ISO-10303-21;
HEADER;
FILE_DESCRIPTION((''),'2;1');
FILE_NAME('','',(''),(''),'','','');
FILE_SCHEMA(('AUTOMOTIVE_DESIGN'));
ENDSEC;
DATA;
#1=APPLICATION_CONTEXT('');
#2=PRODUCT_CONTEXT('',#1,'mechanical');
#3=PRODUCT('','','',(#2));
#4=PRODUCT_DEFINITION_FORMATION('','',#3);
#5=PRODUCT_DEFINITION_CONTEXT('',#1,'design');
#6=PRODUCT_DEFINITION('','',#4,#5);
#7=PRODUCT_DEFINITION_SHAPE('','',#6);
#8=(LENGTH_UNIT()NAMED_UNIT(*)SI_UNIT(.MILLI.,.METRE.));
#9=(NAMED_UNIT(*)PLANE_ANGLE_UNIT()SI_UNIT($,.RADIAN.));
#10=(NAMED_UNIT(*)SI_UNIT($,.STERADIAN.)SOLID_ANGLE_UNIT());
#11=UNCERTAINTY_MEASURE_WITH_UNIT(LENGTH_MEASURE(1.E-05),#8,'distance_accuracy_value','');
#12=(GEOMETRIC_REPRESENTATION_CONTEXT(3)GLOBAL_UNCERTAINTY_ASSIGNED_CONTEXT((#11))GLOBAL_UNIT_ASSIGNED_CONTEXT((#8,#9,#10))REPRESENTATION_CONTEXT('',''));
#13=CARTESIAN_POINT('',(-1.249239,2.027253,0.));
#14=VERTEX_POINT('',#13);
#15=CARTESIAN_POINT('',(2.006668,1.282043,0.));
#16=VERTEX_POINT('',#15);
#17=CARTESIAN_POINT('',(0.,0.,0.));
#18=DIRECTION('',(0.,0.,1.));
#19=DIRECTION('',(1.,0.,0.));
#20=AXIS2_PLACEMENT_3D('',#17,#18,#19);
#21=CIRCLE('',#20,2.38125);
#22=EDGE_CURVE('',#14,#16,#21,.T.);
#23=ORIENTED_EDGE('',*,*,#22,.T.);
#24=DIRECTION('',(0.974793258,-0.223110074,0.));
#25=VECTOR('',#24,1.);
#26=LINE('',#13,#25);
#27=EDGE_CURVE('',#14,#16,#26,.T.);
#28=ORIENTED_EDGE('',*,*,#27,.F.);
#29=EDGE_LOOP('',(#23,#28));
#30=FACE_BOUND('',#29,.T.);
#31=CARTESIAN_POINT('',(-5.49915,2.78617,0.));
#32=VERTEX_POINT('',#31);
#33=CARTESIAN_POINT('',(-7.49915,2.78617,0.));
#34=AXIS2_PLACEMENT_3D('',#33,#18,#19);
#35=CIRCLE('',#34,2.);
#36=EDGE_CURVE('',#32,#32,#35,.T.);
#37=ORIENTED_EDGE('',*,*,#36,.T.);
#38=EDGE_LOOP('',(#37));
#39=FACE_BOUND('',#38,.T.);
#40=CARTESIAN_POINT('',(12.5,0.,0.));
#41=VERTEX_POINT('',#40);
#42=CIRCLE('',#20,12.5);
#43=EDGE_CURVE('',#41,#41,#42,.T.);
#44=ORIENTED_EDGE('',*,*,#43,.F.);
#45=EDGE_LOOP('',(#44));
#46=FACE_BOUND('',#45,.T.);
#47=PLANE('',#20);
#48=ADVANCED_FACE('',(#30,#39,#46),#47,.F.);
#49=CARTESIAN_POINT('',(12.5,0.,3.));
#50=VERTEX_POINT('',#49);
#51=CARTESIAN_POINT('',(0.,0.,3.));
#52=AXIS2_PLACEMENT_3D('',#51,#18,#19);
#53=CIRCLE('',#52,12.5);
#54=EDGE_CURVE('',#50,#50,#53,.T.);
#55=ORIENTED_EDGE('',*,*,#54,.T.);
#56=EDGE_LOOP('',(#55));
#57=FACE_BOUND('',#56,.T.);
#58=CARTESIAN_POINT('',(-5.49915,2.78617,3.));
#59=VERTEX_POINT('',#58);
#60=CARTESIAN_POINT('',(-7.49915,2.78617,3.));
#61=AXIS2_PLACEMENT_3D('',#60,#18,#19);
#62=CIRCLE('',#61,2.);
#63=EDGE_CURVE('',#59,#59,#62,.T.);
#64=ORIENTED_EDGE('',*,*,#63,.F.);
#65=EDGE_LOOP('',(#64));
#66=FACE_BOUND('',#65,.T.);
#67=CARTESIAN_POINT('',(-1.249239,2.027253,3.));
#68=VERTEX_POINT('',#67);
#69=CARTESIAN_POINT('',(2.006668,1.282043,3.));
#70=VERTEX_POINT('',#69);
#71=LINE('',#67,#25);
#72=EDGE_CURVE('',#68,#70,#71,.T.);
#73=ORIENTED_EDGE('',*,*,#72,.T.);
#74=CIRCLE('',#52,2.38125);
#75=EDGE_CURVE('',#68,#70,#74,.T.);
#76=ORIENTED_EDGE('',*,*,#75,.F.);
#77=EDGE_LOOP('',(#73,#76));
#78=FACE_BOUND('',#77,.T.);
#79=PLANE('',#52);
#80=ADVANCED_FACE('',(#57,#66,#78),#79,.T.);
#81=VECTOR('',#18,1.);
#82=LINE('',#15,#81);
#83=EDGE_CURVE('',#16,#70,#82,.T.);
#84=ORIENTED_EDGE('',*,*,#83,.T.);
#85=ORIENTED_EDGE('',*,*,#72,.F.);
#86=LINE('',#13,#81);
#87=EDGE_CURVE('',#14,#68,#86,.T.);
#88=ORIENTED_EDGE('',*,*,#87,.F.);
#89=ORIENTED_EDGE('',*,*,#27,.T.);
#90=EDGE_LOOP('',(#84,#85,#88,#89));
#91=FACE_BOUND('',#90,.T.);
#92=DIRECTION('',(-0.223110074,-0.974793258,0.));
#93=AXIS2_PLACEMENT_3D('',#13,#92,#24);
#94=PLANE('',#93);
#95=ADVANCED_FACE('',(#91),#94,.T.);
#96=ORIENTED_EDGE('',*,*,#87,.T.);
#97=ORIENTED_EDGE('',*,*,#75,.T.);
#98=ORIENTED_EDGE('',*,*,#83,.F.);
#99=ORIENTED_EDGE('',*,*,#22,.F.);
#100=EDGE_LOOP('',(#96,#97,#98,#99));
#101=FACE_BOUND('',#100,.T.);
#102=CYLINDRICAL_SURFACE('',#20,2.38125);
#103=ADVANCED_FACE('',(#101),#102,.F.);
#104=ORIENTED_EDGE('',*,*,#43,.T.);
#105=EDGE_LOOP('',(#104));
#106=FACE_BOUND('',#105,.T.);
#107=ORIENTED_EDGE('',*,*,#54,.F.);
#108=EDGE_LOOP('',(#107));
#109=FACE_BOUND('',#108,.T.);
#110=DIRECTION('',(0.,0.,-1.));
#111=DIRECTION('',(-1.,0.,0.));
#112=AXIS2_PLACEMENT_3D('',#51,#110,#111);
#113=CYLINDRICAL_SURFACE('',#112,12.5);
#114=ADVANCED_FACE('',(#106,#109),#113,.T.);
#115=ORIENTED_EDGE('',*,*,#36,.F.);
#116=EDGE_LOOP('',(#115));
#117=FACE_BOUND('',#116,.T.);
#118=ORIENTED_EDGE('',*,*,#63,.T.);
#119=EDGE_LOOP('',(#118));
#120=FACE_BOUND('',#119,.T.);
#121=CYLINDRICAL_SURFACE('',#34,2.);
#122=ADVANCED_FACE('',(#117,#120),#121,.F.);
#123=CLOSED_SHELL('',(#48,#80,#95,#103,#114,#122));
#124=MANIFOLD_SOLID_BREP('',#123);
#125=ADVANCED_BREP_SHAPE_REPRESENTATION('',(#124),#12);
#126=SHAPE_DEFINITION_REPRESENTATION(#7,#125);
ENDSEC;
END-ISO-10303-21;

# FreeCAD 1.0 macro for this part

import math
import FreeCAD as App
import Part
import Sketcher
from FreeCAD import Vector

doc = App.newDocument("Part")
body = doc.addObject("PartDesign::Body", "Body")

# Sketch on XY plane
sketch1 = body.newObject("Sketcher::SketchObject", "Sketch")
sketch1.AttachmentSupport = (doc.getObject("XY_Plane"), [""])
sketch1.MapMode = "FlatFace"
sketch1.addGeometry(Part.Circle(Vector(0, 0, 0), Vector(0, 0, 1), 12.5), False)
sketch1.addConstraint([
    Sketcher.Constraint("Coincident", 0, 3, -1, 1),
    Sketcher.Constraint("Diameter", 0, 25.0),
])
pad1 = body.newObject("PartDesign::Pad", "Pad")
pad1.Profile = sketch1
pad1.Length = 3

# Sketch on XY plane
sketch2 = body.newObject("Sketcher::SketchObject", "Sketch001")
sketch2.AttachmentSupport = (doc.getObject("XY_Plane"), [""])
sketch2.MapMode = "FlatFace"
sketch2.AttachmentOffset = App.Placement(Vector(0, 0, 3), App.Rotation())
sketch2.addGeometry([
    Part.LineSegment(Vector(2.006668, 1.282043, 0), Vector(-1.249239, 2.027253, 0)),
    Part.ArcOfCircle(Part.Circle(Vector(0, 0, 0), Vector(0, 0, 1), 2.38125), math.radians(121.642307), math.radians(392.574156)),
], False)
sketch2.addConstraint([
    Sketcher.Constraint("Coincident", 0, 1, 1, 2),
    Sketcher.Constraint("Coincident", 1, 1, 0, 2),
    Sketcher.Constraint("Coincident", 1, 3, -1, 1),
    Sketcher.Constraint("Radius", 1, 2.38125),
    Sketcher.Constraint("Distance", 0, 3.3401),
    Sketcher.Constraint("DistanceX", -1, 1, 0, 1, 2.006668),
])
pocket1 = body.newObject("PartDesign::Pocket", "Pocket")
pocket1.Profile = sketch2
pocket1.Length = 3

# Sketch on XY plane
sketch3 = body.newObject("Sketcher::SketchObject", "Sketch002")
sketch3.AttachmentSupport = (doc.getObject("XY_Plane"), [""])
sketch3.MapMode = "FlatFace"
sketch3.AttachmentOffset = App.Placement(Vector(0, 0, 3), App.Rotation())
sketch3.addGeometry(Part.Circle(Vector(-7.49915, 2.78617, 0), Vector(0, 0, 1), 2), False)
sketch3.addConstraint([
    Sketcher.Constraint("Diameter", 0, 4.0),
    Sketcher.Constraint("DistanceX", 0, 3, -1, 1, 7.49915),
    Sketcher.Constraint("DistanceY", -1, 1, 0, 3, 2.78617),
])
pocket2 = body.newObject("PartDesign::Pocket", "Pocket001")
pocket2.Profile = sketch3
pocket2.Length = 3

doc.recompute()
